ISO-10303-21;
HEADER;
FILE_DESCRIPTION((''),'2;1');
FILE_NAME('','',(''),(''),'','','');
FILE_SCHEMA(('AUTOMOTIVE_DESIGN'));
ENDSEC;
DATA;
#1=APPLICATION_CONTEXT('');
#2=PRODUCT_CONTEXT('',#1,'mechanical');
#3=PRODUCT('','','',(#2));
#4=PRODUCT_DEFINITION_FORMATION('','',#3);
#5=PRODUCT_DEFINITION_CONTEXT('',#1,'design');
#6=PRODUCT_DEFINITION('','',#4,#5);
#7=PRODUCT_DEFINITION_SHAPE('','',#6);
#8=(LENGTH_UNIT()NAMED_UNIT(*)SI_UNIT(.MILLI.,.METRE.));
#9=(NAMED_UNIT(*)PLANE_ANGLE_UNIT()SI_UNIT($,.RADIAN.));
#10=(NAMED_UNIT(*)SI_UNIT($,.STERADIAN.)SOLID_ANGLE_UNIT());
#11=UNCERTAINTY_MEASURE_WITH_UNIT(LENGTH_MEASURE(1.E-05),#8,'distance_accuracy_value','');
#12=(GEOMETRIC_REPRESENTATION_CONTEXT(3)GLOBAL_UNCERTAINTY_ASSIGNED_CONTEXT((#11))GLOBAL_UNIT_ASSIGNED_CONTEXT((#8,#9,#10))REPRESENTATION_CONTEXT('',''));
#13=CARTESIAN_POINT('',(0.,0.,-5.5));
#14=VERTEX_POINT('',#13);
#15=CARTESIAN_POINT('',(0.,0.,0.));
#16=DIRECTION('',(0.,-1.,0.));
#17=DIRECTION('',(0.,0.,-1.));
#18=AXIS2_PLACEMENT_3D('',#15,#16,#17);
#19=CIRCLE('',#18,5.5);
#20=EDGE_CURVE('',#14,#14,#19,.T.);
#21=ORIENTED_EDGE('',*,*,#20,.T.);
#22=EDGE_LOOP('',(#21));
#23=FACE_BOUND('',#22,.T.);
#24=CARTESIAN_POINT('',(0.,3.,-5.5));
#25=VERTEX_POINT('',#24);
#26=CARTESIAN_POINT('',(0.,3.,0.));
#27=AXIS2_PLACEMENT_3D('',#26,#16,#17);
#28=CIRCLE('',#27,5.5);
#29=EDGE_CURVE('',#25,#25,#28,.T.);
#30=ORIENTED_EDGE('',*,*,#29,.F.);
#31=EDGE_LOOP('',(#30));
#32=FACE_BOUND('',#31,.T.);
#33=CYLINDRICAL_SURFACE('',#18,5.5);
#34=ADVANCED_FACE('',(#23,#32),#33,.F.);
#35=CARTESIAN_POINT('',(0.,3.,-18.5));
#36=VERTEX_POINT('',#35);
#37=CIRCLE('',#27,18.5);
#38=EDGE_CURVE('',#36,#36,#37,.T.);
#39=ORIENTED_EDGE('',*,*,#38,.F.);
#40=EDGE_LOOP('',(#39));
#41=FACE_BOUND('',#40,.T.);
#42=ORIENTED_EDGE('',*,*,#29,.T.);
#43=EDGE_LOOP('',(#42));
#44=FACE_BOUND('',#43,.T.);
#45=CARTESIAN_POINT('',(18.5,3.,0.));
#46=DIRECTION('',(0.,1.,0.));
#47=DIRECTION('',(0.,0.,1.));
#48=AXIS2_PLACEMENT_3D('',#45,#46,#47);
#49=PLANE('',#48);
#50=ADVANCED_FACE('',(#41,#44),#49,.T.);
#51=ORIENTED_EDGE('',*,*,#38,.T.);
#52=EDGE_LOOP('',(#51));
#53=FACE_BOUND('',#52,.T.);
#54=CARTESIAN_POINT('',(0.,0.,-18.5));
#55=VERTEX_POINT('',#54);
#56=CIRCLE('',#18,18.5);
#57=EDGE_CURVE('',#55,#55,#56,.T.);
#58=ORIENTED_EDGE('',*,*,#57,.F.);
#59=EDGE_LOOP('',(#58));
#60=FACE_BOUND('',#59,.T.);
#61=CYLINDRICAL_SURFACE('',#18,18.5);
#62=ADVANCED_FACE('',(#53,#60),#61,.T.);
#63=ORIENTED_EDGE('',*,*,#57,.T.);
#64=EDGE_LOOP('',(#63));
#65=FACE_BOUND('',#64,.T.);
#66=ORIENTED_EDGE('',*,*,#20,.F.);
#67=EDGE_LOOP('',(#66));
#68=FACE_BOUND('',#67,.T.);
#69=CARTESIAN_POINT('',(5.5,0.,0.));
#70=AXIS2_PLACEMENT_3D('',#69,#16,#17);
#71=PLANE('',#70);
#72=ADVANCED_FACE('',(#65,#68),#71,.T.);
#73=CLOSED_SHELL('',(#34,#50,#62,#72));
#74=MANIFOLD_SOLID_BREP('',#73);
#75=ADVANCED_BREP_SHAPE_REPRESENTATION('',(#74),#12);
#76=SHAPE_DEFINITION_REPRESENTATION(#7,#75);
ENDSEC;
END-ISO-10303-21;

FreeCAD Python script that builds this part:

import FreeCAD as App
import Part
import Sketcher
from FreeCAD import Vector


def add_polygon(sketch, points):
    """Adds a closed chain of lines whose ends are joined by coincident constraints."""
    first, n = sketch.GeometryCount, len(points)
    for a, b in zip(points, points[1:] + points[:1]):
        sketch.addGeometry(Part.LineSegment(App.Vector(*a, 0), App.Vector(*b, 0)), False)
    for i in range(n):
        sketch.addConstraint(Sketcher.Constraint("Coincident", first + i, 2, first + (i + 1) % n, 1))

doc = App.newDocument("Part")
body = doc.addObject("PartDesign::Body", "Body")

sketch1 = body.newObject("Sketcher::SketchObject", "Sketch")
sketch1.AttachmentSupport = (doc.getObject("XY_Plane"), [""])
sketch1.MapMode = "FlatFace"
add_polygon(sketch1, [(5.5, 3), (5.5, 0), (18.5, 0), (18.5, 3)])
sketch1.addConstraint(Sketcher.Constraint("Vertical", 0))
sketch1.addConstraint(Sketcher.Constraint("Horizontal", 1))
sketch1.addConstraint(Sketcher.Constraint("Vertical", 2))
sketch1.addConstraint(Sketcher.Constraint("Horizontal", 3))
sketch1.addConstraint(Sketcher.Constraint("PointOnObject", 0, 2, -1))
sketch1.addConstraint(Sketcher.Constraint("DistanceX", 1, 1, 1, 2, 13.0))
sketch1.addConstraint(Sketcher.Constraint("DistanceY", 0, 2, 0, 1, 3.0))
sketch1.addConstraint(Sketcher.Constraint("DistanceX", -1, 1, 0, 2, 5.5))
revolution = body.newObject("PartDesign::Revolution", "Revolution")
revolution.Profile = sketch1
revolution.ReferenceAxis = (sketch1, ["V_Axis"])
revolution.Angle = 360

doc.recompute()
